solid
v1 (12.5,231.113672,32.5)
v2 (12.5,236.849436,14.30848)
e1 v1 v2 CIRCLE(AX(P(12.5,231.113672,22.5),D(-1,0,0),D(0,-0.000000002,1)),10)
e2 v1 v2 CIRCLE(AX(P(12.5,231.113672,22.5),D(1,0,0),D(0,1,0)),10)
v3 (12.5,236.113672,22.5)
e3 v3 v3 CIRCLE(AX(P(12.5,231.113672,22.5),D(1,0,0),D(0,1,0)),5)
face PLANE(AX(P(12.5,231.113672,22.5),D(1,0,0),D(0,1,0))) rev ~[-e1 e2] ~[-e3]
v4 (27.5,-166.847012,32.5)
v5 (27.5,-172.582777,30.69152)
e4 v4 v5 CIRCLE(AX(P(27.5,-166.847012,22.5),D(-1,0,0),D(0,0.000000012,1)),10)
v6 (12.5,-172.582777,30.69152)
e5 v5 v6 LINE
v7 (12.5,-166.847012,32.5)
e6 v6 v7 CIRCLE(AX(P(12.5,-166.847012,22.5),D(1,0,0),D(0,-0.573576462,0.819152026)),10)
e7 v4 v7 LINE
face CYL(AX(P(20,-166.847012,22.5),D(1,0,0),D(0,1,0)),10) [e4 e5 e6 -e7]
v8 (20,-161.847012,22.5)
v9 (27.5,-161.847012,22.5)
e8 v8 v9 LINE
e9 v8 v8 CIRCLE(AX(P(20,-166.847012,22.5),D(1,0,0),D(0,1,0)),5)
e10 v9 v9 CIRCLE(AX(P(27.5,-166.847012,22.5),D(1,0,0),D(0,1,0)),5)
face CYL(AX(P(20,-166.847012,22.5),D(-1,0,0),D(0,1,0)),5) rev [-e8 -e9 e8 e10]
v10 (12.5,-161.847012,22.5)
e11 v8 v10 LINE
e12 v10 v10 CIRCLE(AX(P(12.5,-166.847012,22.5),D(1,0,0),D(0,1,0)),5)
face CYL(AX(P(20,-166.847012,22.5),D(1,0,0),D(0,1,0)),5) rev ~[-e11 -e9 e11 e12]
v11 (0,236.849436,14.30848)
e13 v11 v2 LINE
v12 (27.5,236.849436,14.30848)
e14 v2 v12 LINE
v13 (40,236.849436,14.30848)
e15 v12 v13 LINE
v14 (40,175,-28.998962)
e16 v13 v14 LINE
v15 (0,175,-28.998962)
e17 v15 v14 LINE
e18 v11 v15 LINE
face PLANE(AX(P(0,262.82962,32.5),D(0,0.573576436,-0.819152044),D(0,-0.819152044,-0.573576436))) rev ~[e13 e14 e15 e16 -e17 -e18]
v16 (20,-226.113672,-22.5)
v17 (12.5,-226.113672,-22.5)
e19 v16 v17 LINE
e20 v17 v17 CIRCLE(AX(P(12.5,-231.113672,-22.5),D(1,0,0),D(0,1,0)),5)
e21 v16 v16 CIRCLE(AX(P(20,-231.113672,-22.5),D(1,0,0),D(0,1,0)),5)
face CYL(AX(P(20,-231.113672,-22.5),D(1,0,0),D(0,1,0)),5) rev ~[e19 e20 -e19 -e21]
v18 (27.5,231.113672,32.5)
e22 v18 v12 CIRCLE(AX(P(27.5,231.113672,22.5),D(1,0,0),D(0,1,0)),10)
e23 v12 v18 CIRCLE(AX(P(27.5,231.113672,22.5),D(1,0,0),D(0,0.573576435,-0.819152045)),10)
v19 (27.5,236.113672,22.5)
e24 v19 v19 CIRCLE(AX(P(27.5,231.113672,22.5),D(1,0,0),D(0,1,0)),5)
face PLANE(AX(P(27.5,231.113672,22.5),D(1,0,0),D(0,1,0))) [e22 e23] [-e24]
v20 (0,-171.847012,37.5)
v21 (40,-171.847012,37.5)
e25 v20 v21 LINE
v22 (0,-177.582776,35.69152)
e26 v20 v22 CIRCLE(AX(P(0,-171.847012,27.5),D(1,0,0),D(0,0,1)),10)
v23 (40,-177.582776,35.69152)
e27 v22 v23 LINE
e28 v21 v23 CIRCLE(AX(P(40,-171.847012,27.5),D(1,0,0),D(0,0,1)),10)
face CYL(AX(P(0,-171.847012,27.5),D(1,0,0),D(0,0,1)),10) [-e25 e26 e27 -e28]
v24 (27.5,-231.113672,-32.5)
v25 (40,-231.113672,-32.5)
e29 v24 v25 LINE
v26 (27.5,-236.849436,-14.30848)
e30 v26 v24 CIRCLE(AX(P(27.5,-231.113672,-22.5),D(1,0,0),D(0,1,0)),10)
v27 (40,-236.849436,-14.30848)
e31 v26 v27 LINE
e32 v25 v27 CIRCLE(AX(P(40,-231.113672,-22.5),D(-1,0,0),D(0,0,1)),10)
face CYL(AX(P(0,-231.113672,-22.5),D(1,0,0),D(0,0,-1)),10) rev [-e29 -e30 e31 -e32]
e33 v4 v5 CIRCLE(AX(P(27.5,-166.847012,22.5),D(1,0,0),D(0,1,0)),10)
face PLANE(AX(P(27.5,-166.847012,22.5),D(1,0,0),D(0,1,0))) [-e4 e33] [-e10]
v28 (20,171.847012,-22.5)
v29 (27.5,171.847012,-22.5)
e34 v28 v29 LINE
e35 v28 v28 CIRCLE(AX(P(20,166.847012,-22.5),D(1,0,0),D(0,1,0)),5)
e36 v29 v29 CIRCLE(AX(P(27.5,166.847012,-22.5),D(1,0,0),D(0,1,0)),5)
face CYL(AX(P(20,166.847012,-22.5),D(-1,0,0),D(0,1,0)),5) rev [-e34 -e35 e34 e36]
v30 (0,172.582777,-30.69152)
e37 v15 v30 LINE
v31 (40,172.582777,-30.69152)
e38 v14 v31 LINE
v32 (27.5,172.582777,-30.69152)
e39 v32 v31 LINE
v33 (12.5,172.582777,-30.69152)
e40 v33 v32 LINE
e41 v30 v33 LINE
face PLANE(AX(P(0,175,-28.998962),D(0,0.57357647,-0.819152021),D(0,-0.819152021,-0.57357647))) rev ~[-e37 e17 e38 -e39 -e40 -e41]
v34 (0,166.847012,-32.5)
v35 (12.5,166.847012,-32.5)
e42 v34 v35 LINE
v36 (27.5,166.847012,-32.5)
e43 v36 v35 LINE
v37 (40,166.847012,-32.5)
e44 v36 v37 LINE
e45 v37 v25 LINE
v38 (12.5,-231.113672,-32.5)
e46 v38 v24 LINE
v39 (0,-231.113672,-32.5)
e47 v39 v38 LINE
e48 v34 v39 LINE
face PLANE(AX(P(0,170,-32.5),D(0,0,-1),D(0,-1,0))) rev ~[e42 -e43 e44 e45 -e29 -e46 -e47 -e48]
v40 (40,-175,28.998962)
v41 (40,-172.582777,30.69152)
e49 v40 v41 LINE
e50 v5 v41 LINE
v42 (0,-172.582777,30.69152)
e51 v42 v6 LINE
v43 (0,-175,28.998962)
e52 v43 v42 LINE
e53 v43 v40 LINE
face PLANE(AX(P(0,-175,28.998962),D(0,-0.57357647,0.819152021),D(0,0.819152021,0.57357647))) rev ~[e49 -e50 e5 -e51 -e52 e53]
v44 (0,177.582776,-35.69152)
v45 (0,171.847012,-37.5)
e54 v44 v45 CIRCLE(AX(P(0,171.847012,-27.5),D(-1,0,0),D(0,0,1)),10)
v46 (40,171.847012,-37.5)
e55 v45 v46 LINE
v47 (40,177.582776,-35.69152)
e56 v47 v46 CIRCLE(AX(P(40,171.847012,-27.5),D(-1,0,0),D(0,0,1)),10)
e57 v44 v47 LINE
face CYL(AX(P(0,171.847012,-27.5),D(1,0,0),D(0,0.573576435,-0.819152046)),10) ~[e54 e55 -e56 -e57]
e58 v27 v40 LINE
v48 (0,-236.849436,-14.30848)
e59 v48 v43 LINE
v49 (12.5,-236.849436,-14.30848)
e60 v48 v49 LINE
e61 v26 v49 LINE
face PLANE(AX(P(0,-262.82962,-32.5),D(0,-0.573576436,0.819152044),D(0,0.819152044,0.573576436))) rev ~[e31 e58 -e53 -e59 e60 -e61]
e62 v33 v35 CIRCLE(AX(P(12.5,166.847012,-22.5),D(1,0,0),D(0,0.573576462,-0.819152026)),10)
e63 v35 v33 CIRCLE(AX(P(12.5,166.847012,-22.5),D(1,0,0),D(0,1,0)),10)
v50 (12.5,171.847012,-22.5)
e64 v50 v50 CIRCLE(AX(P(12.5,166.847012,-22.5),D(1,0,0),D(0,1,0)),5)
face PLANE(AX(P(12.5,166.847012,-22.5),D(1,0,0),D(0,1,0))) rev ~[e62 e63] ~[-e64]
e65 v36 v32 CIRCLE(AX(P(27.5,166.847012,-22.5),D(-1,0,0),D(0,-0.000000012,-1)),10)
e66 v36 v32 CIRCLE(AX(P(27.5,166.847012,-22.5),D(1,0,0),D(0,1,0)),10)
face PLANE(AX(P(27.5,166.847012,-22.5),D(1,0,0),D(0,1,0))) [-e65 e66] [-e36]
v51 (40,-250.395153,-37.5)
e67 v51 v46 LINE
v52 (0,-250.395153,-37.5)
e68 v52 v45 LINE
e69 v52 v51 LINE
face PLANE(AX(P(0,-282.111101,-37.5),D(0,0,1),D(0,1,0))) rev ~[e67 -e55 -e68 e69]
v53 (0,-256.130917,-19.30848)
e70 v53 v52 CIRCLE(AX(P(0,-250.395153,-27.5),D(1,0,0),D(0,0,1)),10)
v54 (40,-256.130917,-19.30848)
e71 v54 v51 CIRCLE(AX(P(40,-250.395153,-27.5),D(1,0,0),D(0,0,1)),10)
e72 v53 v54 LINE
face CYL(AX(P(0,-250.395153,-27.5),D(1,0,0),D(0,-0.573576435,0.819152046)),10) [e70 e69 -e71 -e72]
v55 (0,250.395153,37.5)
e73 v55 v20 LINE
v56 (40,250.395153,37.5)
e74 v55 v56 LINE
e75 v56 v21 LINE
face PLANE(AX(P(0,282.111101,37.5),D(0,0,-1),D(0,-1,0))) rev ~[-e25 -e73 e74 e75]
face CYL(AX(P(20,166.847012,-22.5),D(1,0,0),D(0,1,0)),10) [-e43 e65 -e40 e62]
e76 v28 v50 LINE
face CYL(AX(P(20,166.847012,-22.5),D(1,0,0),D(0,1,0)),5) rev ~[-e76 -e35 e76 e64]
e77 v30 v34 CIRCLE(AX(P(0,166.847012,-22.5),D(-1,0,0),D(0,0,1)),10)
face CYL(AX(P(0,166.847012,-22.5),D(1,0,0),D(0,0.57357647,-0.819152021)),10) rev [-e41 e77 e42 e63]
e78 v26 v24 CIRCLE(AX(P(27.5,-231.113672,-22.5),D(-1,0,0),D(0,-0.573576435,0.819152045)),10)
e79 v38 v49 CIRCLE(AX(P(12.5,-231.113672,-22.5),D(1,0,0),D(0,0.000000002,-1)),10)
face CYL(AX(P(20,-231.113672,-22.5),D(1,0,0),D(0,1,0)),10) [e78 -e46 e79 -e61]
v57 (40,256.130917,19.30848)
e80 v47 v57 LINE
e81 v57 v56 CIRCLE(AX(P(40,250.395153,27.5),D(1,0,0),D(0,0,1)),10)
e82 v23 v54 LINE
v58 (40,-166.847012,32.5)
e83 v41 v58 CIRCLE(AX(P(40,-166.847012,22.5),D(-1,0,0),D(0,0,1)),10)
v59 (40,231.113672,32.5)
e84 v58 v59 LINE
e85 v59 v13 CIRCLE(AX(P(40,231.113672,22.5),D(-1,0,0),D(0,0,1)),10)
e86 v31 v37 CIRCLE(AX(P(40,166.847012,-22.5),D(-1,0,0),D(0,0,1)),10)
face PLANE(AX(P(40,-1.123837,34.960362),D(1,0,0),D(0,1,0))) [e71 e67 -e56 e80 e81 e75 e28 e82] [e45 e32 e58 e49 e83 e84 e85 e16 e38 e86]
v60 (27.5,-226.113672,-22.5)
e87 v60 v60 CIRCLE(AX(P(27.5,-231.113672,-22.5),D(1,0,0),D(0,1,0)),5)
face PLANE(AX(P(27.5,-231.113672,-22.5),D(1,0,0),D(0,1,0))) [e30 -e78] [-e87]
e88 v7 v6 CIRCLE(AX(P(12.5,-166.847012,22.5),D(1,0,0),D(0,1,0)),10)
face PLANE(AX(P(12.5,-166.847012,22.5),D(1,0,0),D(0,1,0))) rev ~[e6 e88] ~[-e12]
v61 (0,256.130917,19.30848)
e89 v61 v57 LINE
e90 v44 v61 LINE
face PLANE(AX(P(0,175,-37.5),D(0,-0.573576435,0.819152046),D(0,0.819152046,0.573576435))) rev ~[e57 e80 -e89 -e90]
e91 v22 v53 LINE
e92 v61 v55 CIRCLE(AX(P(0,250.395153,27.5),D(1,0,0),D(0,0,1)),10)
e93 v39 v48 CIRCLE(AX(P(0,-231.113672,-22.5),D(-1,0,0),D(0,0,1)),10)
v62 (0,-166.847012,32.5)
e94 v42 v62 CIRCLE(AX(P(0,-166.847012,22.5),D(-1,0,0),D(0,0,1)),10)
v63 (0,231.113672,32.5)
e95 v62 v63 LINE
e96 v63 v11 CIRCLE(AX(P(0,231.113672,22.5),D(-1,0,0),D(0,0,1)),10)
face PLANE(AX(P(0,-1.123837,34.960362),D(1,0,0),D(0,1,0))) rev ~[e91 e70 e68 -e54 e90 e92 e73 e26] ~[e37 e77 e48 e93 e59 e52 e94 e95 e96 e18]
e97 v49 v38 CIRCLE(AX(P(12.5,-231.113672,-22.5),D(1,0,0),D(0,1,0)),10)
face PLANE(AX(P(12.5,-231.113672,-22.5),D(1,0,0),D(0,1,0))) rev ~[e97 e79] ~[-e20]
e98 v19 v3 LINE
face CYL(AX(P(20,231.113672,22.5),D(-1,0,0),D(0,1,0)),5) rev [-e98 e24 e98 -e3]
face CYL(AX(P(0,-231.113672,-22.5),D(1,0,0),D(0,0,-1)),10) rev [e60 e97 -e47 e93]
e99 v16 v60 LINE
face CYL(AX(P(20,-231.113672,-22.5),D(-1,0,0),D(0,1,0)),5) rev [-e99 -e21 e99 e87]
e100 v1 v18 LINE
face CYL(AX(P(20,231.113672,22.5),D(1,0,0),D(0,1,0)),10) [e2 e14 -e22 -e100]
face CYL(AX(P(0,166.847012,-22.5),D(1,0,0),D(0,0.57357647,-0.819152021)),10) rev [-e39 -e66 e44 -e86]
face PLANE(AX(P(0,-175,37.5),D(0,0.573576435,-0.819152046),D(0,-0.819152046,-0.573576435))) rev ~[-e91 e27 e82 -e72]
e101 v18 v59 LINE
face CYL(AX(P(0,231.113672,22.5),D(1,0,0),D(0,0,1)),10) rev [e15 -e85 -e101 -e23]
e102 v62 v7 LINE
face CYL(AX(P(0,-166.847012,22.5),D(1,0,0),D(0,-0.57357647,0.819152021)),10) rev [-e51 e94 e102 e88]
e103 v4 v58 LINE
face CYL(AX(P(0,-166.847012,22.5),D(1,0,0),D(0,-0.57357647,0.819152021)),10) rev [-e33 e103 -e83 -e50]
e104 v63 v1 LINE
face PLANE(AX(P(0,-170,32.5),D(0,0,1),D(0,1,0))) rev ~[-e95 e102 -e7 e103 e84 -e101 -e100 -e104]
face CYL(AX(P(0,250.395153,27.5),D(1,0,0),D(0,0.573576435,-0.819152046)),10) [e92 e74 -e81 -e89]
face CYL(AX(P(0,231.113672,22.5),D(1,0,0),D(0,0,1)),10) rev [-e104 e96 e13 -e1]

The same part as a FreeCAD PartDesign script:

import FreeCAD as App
import Part
import Sketcher
from FreeCAD import Vector
Q = App.Units.Quantity


def edges_at(feature, points):
    """Names of the edges that pass closest to the given points."""
    edges = feature.Shape.Edges
    near = lambda p: min(range(len(edges)), key=lambda i: edges[i].distToShape(Part.Vertex(*p))[0])
    return sorted({f"Edge{near(p) + 1}" for p in points})

doc = App.newDocument("Part")
body = doc.addObject("PartDesign::Body", "Body")

sketch1 = doc.addObject("Sketcher::SketchObject", "Sketch")
body.addObject(sketch1)
sketch1.AttachmentSupport = (doc.YZ_Plane, [""])
sketch1.MapMode = "FlatFace"
sketch1.addGeometry(Part.LineSegment(Vector(175, -38, 0), Vector(282, 38, 0)), False)
sketch1.addGeometry(Part.LineSegment(Vector(282, 38, 0), Vector(-175, 38, 0)), False)
sketch1.addGeometry(Part.LineSegment(Vector(-175, 38, 0), Vector(-282, -38, 0)), False)
sketch1.addGeometry(Part.LineSegment(Vector(-282, -38, 0), Vector(175, -38, 0)), False)
sketch1.addGeometry(Part.LineSegment(Vector(-175, 29, 0), Vector(-170, 32, 0)), False)
sketch1.addGeometry(Part.LineSegment(Vector(-170, 32, 0), Vector(263, 32, 0)), False)
sketch1.addGeometry(Part.LineSegment(Vector(263, 32, 0), Vector(175, -29, 0)), False)
sketch1.addGeometry(Part.LineSegment(Vector(175, -29, 0), Vector(170, -32, 0)), False)
sketch1.addGeometry(Part.LineSegment(Vector(170, -32, 0), Vector(-263, -32, 0)), False)
sketch1.addGeometry(Part.LineSegment(Vector(-263, -32, 0), Vector(-175, 29, 0)), False)
sketch1.addConstraint(Sketcher.Constraint("Coincident", 0, 2, 1, 1))
sketch1.addConstraint(Sketcher.Constraint("Coincident", 1, 2, 2, 1))
sketch1.addConstraint(Sketcher.Constraint("Coincident", 2, 2, 3, 1))
sketch1.addConstraint(Sketcher.Constraint("Coincident", 3, 2, 0, 1))
sketch1.addConstraint(Sketcher.Constraint("Coincident", 4, 2, 5, 1))
sketch1.addConstraint(Sketcher.Constraint("Coincident", 5, 2, 6, 1))
sketch1.addConstraint(Sketcher.Constraint("Coincident", 6, 2, 7, 1))
sketch1.addConstraint(Sketcher.Constraint("Coincident", 7, 2, 8, 1))
sketch1.addConstraint(Sketcher.Constraint("Coincident", 8, 2, 9, 1))
sketch1.addConstraint(Sketcher.Constraint("Coincident", 9, 2, 4, 1))
sketch1.addConstraint(Sketcher.Constraint("Horizontal", 1))
sketch1.addConstraint(Sketcher.Constraint("Horizontal", 3))
sketch1.addConstraint(Sketcher.Constraint("Horizontal", 5))
sketch1.addConstraint(Sketcher.Constraint("Horizontal", 8))
sketch1.addConstraint(Sketcher.Constraint("Symmetric", 0, 2, 2, 2, -1, 1))
sketch1.addConstraint(Sketcher.Constraint("Symmetric", 4, 2, 7, 2, -1, 1))
sketch1.addConstraint(Sketcher.Constraint("Symmetric", 6, 2, 9, 2, -1, 1))
sketch1.addConstraint(Sketcher.Constraint("Parallel", 0, 2))
sketch1.addConstraint(Sketcher.Constraint("Parallel", 2, 4))
sketch1.addConstraint(Sketcher.Constraint("Parallel", 4, 6))
sketch1.addConstraint(Sketcher.Constraint("Parallel", 7, 9))
sketch1.addConstraint(Sketcher.Constraint("Vertical", 3, 2, 6, 2))
sketch1.addConstraint(Sketcher.Constraint("Angle", 0, Q("35 deg")))
sketch1.addConstraint(Sketcher.Constraint("DistanceX", 1, 2, -1, 1, Q("175 mm")))
sketch1.addConstraint(Sketcher.Constraint("DistanceX", 4, 2, -1, 1, Q("170 mm")))
sketch1.addConstraint(Sketcher.Constraint("DistanceY", 2, 2, 1, 2, Q("75 mm")))
sketch1.addConstraint(Sketcher.Constraint("DistanceY", 4, 2, 1, 2, Q("5 mm")))
pad1 = doc.addObject("PartDesign::Pad", "Pad")
body.addObject(pad1)
pad1.Profile = sketch1
pad1.Length = 40
doc.recompute()

fillet = doc.addObject("PartDesign::Fillet", "Fillet")
body.addObject(fillet)
fillet.Base = (pad1, edges_at(pad1, [
    (20, 282.111, 37.5),
    (20, 262.83, 32.5),
    (20, 170, -32.5),
    (20, -282.111, -37.5),
    (20, -175, 37.5),
    (20, -170, 32.5),
    (20, -262.83, -32.5),
    (20, 175, -37.5),
]))
fillet.Radius = 10

sketch2 = doc.addObject("Sketcher::SketchObject", "Sketch001")
body.addObject(sketch2)
sketch2.AttachmentSupport = (doc.YZ_Plane, [""])
sketch2.MapMode = "FlatFace"
sketch2.AttachmentOffset = App.Placement(Vector(0, 0, 20), App.Rotation())
sketch2.addGeometry(Part.Circle(Vector(-167, 22, 0), Vector(0, 0, 1), 10), False)
sketch2.addGeometry(Part.Circle(Vector(-167, 22, 0), Vector(0, 0, 1), 5), False)
sketch2.addGeometry(Part.Circle(Vector(-231, -22, 0), Vector(0, 0, 1), 10), False)
sketch2.addGeometry(Part.Circle(Vector(-231, -22, 0), Vector(0, 0, 1), 5), False)
sketch2.addGeometry(Part.Circle(Vector(167, -22, 0), Vector(0, 0, 1), 10), False)
sketch2.addGeometry(Part.Circle(Vector(167, -22, 0), Vector(0, 0, 1), 5), False)
sketch2.addGeometry(Part.Circle(Vector(231, 22, 0), Vector(0, 0, 1), 10), False)
sketch2.addGeometry(Part.Circle(Vector(231, 22, 0), Vector(0, 0, 1), 5), False)
sketch2.addConstraint(Sketcher.Constraint("Coincident", 1, 3, 0, 3))
sketch2.addConstraint(Sketcher.Constraint("Coincident", 3, 3, 2, 3))
sketch2.addConstraint(Sketcher.Constraint("Coincident", 5, 3, 4, 3))
sketch2.addConstraint(Sketcher.Constraint("Coincident", 7, 3, 6, 3))
sketch2.addConstraint(Sketcher.Constraint("Equal", 0, 2))
sketch2.addConstraint(Sketcher.Constraint("Equal", 1, 3))
sketch2.addConstraint(Sketcher.Constraint("Equal", 2, 4))
sketch2.addConstraint(Sketcher.Constraint("Equal", 3, 5))
sketch2.addConstraint(Sketcher.Constraint("Equal", 4, 6))
sketch2.addConstraint(Sketcher.Constraint("Equal", 5, 7))
sketch2.addConstraint(Sketcher.Constraint("Symmetric", 0, 3, 4, 3, -1, 1))
sketch2.addConstraint(Sketcher.Constraint("Symmetric", 2, 3, 6, 3, -1, 1))
sketch2.addConstraint(Sketcher.Constraint("Horizontal", 3, 3, 4, 3))
sketch2.addConstraint(Sketcher.Constraint("Diameter", 0, Q("20 mm")))
sketch2.addConstraint(Sketcher.Constraint("Diameter", 1, Q("10 mm")))
sketch2.addConstraint(Sketcher.Constraint("DistanceY", 2, 3, 0, 3, Q("45 mm")))
sketch2.addConstraint(Sketcher.Constraint("DistanceX", 0, 3, -1, 1, Q("166.847012 mm")))
sketch2.addConstraint(Sketcher.Constraint("DistanceX", 2, 3, -1, 1, Q("231.113672 mm")))
pad2 = doc.addObject("PartDesign::Pad", "Pad001")
body.addObject(pad2)
pad2.Profile = sketch2
pad2.Length = 15
pad2.Midplane = True

doc.recompute()
